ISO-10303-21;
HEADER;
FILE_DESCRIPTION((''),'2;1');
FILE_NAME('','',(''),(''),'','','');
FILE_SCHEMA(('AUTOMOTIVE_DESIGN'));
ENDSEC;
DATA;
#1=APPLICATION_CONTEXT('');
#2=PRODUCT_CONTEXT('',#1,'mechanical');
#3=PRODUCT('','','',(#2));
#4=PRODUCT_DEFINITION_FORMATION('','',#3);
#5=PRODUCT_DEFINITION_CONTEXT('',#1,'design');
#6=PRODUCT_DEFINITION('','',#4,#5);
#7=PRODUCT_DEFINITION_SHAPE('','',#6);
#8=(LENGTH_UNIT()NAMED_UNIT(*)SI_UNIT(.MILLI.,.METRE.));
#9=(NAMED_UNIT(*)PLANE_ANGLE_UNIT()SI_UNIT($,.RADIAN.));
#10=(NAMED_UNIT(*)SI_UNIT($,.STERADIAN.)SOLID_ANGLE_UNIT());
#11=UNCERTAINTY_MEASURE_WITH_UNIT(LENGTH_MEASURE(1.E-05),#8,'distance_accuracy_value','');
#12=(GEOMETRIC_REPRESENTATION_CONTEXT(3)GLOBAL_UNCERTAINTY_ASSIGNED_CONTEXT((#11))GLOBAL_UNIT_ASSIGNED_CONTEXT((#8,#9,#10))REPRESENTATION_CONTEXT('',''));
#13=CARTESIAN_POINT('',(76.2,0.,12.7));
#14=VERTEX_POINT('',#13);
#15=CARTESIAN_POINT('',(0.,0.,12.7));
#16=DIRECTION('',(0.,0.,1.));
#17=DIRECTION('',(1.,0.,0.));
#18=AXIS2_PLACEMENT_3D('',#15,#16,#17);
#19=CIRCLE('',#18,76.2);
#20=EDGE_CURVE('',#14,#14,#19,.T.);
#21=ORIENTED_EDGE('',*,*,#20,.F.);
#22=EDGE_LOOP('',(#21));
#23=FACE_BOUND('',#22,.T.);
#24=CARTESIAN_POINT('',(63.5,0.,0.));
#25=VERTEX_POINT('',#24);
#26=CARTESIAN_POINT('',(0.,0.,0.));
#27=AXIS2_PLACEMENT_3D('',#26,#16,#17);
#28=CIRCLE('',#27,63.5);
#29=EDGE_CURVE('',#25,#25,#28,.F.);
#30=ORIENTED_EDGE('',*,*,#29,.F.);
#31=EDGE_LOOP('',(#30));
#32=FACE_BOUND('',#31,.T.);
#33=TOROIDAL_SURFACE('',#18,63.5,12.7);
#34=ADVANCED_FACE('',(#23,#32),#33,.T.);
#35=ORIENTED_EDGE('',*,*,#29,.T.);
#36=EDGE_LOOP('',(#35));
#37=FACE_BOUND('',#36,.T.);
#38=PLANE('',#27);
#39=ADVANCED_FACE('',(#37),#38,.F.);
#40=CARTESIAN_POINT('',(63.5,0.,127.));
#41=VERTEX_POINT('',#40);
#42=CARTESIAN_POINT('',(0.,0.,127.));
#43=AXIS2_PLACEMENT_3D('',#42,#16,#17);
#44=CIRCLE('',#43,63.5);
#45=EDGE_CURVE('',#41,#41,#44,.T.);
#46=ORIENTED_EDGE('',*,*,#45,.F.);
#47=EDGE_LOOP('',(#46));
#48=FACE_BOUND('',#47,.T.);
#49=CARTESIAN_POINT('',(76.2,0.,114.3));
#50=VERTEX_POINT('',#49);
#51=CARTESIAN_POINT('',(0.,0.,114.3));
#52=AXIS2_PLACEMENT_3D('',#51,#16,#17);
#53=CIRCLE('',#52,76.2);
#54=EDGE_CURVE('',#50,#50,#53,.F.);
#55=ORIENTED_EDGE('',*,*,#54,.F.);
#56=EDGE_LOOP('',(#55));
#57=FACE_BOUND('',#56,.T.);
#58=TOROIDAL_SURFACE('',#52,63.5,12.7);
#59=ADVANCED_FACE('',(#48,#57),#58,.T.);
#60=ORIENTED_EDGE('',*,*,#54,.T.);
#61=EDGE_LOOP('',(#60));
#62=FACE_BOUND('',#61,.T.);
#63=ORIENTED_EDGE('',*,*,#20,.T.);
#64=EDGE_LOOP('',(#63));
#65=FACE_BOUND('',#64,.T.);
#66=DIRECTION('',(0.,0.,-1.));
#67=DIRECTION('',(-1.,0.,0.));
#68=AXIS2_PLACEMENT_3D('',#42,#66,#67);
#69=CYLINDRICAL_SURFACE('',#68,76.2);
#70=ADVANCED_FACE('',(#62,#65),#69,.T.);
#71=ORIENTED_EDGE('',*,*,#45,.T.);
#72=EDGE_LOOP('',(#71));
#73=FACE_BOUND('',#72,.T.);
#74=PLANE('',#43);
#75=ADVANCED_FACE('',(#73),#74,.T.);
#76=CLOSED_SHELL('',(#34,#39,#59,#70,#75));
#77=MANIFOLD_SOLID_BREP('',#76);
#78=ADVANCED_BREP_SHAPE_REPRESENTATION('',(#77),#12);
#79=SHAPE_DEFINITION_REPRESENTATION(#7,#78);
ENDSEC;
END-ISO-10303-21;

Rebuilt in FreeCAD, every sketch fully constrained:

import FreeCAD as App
import Part
import Sketcher
Q = App.Units.Quantity


def edges_at(feature, points):
    """Names of the edges that pass closest to the given points."""
    edges = feature.Shape.Edges
    near = lambda p: min(range(len(edges)), key=lambda i: edges[i].distToShape(Part.Vertex(*p))[0])
    return sorted({f"Edge{near(p) + 1}" for p in points})

doc = App.newDocument("Part")
body = doc.addObject("PartDesign::Body", "Body")

sketch1 = doc.addObject("Sketcher::SketchObject", "Sketch")
body.addObject(sketch1)
sketch1.AttachmentSupport = (doc.XY_Plane, [""])
sketch1.MapMode = "FlatFace"
sketch1.addGeometry(Part.Circle(App.Vector(0, 0, 0), App.Vector(0, 0, 1), 76), False)
sketch1.addConstraint(Sketcher.Constraint("Coincident", 0, 3, -1, 1))
sketch1.addConstraint(Sketcher.Constraint("Diameter", 0, Q("6 in")))
pad1 = doc.addObject("PartDesign::Pad", "Pad")
body.addObject(pad1)
pad1.Profile = sketch1
pad1.Length = Q("5 in")
doc.recompute()

fillet = doc.addObject("PartDesign::Fillet", "Fillet")
body.addObject(fillet)
fillet.Base = (pad1, edges_at(pad1, [(-76.2, 0, 0), (-76.2, 0, 127)]))
fillet.Radius = Q("0.5 in")

doc.recompute()
